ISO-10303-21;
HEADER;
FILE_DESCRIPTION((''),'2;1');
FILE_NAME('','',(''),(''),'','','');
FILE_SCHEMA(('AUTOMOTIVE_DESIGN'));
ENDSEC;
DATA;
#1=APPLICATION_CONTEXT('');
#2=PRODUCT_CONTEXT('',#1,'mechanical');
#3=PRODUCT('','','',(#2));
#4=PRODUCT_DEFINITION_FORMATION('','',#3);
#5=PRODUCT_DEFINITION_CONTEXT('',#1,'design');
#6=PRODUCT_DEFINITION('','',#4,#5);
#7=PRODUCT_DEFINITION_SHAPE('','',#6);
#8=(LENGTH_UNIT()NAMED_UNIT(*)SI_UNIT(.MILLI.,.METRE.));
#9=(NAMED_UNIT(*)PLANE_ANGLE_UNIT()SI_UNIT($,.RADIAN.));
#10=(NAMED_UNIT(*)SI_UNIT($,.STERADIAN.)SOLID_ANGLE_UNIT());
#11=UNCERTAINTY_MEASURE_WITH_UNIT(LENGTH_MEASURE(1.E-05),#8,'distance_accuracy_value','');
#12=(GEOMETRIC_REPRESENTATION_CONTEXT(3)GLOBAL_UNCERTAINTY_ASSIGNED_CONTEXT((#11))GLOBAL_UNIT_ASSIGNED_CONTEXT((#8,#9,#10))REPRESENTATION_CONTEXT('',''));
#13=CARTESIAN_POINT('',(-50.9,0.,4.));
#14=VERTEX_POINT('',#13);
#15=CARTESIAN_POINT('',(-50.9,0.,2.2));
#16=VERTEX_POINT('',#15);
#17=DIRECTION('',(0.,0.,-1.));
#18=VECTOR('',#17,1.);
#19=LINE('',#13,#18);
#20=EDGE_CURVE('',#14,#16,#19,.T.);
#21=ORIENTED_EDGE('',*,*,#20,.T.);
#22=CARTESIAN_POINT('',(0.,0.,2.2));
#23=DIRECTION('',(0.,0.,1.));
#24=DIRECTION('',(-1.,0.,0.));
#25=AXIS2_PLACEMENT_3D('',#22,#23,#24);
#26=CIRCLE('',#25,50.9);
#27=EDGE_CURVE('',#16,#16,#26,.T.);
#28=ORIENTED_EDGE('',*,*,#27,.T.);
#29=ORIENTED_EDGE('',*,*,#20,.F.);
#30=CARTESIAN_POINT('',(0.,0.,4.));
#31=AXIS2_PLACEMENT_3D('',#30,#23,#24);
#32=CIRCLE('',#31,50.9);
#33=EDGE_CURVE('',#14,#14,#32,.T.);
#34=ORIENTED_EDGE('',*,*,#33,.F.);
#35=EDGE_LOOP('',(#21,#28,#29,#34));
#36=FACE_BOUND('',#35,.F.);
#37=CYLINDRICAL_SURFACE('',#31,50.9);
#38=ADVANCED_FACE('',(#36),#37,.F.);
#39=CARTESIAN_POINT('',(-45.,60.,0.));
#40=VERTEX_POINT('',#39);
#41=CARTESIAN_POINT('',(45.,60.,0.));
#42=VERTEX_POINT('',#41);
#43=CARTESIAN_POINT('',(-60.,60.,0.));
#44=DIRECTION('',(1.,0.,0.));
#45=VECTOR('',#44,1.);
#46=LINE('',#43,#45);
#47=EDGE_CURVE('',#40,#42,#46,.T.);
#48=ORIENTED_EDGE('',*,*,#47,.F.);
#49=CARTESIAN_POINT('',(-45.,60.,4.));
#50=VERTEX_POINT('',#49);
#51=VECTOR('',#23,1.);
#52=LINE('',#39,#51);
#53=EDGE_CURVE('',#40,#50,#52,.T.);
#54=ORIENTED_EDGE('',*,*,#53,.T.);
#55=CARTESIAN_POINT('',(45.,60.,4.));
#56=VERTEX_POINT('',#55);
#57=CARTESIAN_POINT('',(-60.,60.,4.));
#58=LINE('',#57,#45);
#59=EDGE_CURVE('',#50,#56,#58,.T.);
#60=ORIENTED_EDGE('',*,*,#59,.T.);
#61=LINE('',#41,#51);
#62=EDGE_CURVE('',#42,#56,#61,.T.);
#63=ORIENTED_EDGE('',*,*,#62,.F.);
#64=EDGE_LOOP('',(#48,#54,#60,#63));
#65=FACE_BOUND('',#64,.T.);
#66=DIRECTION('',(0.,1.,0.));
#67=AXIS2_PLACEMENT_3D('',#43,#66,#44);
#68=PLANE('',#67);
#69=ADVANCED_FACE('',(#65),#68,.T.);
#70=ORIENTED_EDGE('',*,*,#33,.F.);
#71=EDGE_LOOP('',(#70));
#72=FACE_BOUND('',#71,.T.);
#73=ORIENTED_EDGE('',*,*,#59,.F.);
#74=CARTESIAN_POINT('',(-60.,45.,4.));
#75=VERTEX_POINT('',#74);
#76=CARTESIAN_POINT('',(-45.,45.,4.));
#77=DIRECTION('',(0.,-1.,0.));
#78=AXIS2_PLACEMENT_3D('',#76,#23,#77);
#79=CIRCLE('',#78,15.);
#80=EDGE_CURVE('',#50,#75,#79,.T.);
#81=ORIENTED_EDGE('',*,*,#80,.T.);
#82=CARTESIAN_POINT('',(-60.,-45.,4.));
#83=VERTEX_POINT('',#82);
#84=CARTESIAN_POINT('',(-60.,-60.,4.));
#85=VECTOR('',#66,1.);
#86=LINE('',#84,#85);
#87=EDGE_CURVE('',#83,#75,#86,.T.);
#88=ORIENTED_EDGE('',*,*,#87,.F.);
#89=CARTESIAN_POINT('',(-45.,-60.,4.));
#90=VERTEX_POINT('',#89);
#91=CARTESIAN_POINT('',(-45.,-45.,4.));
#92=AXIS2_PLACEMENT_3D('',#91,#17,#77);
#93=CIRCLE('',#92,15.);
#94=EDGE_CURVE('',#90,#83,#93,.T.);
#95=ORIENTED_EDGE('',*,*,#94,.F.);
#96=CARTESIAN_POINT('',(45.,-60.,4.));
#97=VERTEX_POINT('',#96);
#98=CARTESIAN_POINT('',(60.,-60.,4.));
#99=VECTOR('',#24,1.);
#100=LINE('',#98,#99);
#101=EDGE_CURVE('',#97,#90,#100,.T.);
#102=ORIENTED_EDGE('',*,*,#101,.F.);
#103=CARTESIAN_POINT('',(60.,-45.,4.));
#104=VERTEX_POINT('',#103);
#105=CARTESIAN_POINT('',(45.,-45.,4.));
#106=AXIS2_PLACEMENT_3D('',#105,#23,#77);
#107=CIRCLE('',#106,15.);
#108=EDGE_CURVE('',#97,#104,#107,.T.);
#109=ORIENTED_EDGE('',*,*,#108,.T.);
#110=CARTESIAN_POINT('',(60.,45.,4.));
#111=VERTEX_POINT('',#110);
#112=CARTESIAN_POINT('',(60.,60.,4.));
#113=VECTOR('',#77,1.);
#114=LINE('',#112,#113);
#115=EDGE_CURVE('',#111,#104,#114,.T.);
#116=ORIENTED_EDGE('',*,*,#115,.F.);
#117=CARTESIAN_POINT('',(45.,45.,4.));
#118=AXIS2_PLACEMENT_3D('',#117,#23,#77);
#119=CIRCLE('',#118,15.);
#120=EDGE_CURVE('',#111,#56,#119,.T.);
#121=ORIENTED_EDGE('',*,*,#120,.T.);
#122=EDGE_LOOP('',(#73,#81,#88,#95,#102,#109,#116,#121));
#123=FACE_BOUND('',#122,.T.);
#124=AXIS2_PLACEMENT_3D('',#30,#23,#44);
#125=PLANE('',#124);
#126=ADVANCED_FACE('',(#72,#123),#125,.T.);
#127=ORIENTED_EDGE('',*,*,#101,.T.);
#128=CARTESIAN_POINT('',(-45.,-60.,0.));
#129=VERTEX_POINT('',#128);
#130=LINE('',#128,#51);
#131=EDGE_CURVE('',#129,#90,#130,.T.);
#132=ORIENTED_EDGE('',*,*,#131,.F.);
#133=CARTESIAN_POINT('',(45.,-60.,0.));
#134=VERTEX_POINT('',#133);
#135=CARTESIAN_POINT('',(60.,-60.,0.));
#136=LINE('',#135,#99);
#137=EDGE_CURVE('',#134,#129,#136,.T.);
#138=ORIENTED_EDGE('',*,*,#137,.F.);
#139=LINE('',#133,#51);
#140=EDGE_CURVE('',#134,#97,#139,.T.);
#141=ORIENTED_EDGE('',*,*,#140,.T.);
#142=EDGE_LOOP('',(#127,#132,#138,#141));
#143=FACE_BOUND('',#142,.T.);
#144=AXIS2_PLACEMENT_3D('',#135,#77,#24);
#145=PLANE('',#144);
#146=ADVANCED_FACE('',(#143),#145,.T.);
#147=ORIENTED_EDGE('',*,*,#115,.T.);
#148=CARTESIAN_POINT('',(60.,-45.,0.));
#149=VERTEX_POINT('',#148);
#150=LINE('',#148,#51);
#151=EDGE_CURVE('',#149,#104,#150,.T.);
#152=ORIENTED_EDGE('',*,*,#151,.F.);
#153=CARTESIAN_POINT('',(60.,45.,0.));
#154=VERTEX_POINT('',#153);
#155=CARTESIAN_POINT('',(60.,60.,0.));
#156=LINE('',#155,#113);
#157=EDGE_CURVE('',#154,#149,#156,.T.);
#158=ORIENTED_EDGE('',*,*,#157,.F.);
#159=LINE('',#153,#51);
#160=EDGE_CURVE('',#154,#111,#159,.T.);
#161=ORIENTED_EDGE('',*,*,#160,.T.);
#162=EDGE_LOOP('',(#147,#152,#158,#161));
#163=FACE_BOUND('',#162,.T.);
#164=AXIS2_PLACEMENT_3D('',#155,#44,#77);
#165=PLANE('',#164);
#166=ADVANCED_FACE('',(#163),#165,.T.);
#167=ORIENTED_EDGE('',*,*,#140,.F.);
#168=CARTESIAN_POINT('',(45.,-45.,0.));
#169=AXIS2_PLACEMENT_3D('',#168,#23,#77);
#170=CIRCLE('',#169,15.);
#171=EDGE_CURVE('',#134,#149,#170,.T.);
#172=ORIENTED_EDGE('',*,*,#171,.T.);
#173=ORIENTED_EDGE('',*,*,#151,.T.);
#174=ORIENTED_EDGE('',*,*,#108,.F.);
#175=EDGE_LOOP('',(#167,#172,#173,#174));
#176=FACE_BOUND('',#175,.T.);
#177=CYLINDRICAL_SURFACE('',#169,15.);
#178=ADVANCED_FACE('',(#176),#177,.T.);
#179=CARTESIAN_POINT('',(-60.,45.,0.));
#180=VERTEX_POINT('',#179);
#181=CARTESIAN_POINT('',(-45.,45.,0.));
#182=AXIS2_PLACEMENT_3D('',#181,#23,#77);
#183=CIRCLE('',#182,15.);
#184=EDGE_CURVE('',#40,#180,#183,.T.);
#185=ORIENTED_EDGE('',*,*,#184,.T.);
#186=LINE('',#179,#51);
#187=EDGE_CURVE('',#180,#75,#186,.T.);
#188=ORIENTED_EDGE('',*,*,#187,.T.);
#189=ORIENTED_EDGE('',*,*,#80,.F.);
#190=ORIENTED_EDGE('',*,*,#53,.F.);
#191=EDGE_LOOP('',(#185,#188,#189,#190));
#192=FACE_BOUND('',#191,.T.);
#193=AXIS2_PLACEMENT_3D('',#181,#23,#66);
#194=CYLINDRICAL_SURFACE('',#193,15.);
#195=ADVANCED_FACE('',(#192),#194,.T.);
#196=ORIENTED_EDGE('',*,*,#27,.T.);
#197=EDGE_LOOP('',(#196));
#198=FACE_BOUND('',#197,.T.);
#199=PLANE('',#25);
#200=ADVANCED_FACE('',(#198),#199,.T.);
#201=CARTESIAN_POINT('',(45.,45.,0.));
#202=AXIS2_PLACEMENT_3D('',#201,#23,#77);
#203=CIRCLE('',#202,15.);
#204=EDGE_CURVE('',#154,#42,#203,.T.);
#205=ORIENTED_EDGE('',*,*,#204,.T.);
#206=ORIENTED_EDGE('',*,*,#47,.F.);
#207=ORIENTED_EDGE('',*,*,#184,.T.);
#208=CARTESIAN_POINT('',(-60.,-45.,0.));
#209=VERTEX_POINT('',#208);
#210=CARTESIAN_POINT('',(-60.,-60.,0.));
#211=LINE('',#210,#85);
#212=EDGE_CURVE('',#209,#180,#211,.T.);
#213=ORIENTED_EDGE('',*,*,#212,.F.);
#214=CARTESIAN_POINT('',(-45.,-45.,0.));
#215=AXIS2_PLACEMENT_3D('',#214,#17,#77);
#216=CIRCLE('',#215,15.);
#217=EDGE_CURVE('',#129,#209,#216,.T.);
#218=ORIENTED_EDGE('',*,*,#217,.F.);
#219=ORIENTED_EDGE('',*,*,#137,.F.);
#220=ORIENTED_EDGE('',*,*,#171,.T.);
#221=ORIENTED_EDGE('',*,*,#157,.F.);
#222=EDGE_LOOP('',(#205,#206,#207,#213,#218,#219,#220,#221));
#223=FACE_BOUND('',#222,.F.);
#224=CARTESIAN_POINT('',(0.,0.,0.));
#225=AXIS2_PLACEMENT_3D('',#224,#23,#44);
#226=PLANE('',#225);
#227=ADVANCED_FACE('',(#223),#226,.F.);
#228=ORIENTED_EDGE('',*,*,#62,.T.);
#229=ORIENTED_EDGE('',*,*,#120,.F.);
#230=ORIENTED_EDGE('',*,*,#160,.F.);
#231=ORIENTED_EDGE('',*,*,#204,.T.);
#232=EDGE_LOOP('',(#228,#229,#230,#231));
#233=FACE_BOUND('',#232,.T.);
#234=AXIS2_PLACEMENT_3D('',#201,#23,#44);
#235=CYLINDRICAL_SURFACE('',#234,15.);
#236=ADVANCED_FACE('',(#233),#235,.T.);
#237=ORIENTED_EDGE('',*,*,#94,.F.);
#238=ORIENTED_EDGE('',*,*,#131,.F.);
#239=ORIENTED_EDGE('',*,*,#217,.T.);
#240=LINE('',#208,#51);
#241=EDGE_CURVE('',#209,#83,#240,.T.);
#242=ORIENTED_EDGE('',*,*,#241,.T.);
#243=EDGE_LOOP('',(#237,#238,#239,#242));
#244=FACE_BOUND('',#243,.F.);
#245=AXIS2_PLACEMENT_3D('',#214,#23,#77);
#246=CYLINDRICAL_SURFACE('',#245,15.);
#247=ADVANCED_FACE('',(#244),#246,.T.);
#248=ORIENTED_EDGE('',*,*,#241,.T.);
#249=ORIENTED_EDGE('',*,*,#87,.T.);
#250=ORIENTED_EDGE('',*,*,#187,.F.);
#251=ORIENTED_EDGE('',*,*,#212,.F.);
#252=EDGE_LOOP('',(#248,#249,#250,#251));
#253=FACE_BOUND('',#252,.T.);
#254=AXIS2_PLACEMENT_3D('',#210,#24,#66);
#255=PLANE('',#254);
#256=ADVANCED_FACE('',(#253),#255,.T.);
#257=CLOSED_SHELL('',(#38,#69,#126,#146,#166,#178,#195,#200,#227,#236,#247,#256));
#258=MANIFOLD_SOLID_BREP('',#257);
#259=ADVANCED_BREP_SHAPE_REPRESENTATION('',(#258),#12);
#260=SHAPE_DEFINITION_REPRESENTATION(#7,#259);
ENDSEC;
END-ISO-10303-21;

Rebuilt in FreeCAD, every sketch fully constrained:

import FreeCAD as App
import Part
import Sketcher

V = App.Vector


def edges_at(feature, points):
    """Names of the edges that pass closest to the given points."""
    edges = feature.Shape.Edges
    near = lambda p: min(range(len(edges)), key=lambda i: edges[i].distToShape(Part.Vertex(*p))[0])
    return sorted({f"Edge{near(p) + 1}" for p in points})

doc = App.newDocument("Part")
body = doc.addObject("PartDesign::Body", "Body")

sketch1 = body.newObject("Sketcher::SketchObject", "Sketch")
sketch1.AttachmentSupport = (doc.getObject("XY_Plane"), [""])
sketch1.MapMode = "FlatFace"
sketch1.addGeometry([
    Part.LineSegment(V(-60, -60, 0), V(60, -60, 0)),
    Part.LineSegment(V(60, -60, 0), V(60, 60, 0)),
    Part.LineSegment(V(60, 60, 0), V(-60, 60, 0)),
    Part.LineSegment(V(-60, 60, 0), V(-60, -60, 0)),
], False)
sketch1.addConstraint([
    Sketcher.Constraint("Coincident", 0, 2, 1, 1),
    Sketcher.Constraint("Coincident", 1, 2, 2, 1),
    Sketcher.Constraint("Coincident", 2, 2, 3, 1),
    Sketcher.Constraint("Coincident", 3, 2, 0, 1),
    Sketcher.Constraint("Horizontal", 0),
    Sketcher.Constraint("Vertical", 1),
    Sketcher.Constraint("Horizontal", 2),
    Sketcher.Constraint("Vertical", 3),
    Sketcher.Constraint("Symmetric", 0, 2, 2, 2, -1, 1),
    Sketcher.Constraint("Equal", 2, 1),
    Sketcher.Constraint("DistanceX", 0, 1, 0, 2, 120.0),
])
pad1 = body.newObject("PartDesign::Pad", "Pad")
pad1.Profile = sketch1
pad1.Length = 4

sketch2 = body.newObject("Sketcher::SketchObject", "Sketch001")
sketch2.AttachmentSupport = (doc.getObject("XY_Plane"), [""])
sketch2.MapMode = "FlatFace"
sketch2.AttachmentOffset = App.Placement(V(0, 0, 4), App.Rotation())
sketch2.addGeometry(Part.Circle(V(0, 0, 0), V(0, 0, 1), 50.9), False)
sketch2.addConstraint([
    Sketcher.Constraint("Coincident", 0, 3, -1, 1),
    Sketcher.Constraint("Diameter", 0, 101.8),
])
pocket1 = body.newObject("PartDesign::Pocket", "Pocket")
pocket1.Profile = sketch2
pocket1.Length = 1.8
doc.recompute()

fillet = body.newObject("PartDesign::Fillet", "Fillet")
fillet.Base = (pocket1, edges_at(pocket1, [
    (60, -60, 2),
    (-60, -60, 2),
    (60, 60, 2),
    (-60, 60, 2),
]))
fillet.Radius = 15

doc.recompute()
